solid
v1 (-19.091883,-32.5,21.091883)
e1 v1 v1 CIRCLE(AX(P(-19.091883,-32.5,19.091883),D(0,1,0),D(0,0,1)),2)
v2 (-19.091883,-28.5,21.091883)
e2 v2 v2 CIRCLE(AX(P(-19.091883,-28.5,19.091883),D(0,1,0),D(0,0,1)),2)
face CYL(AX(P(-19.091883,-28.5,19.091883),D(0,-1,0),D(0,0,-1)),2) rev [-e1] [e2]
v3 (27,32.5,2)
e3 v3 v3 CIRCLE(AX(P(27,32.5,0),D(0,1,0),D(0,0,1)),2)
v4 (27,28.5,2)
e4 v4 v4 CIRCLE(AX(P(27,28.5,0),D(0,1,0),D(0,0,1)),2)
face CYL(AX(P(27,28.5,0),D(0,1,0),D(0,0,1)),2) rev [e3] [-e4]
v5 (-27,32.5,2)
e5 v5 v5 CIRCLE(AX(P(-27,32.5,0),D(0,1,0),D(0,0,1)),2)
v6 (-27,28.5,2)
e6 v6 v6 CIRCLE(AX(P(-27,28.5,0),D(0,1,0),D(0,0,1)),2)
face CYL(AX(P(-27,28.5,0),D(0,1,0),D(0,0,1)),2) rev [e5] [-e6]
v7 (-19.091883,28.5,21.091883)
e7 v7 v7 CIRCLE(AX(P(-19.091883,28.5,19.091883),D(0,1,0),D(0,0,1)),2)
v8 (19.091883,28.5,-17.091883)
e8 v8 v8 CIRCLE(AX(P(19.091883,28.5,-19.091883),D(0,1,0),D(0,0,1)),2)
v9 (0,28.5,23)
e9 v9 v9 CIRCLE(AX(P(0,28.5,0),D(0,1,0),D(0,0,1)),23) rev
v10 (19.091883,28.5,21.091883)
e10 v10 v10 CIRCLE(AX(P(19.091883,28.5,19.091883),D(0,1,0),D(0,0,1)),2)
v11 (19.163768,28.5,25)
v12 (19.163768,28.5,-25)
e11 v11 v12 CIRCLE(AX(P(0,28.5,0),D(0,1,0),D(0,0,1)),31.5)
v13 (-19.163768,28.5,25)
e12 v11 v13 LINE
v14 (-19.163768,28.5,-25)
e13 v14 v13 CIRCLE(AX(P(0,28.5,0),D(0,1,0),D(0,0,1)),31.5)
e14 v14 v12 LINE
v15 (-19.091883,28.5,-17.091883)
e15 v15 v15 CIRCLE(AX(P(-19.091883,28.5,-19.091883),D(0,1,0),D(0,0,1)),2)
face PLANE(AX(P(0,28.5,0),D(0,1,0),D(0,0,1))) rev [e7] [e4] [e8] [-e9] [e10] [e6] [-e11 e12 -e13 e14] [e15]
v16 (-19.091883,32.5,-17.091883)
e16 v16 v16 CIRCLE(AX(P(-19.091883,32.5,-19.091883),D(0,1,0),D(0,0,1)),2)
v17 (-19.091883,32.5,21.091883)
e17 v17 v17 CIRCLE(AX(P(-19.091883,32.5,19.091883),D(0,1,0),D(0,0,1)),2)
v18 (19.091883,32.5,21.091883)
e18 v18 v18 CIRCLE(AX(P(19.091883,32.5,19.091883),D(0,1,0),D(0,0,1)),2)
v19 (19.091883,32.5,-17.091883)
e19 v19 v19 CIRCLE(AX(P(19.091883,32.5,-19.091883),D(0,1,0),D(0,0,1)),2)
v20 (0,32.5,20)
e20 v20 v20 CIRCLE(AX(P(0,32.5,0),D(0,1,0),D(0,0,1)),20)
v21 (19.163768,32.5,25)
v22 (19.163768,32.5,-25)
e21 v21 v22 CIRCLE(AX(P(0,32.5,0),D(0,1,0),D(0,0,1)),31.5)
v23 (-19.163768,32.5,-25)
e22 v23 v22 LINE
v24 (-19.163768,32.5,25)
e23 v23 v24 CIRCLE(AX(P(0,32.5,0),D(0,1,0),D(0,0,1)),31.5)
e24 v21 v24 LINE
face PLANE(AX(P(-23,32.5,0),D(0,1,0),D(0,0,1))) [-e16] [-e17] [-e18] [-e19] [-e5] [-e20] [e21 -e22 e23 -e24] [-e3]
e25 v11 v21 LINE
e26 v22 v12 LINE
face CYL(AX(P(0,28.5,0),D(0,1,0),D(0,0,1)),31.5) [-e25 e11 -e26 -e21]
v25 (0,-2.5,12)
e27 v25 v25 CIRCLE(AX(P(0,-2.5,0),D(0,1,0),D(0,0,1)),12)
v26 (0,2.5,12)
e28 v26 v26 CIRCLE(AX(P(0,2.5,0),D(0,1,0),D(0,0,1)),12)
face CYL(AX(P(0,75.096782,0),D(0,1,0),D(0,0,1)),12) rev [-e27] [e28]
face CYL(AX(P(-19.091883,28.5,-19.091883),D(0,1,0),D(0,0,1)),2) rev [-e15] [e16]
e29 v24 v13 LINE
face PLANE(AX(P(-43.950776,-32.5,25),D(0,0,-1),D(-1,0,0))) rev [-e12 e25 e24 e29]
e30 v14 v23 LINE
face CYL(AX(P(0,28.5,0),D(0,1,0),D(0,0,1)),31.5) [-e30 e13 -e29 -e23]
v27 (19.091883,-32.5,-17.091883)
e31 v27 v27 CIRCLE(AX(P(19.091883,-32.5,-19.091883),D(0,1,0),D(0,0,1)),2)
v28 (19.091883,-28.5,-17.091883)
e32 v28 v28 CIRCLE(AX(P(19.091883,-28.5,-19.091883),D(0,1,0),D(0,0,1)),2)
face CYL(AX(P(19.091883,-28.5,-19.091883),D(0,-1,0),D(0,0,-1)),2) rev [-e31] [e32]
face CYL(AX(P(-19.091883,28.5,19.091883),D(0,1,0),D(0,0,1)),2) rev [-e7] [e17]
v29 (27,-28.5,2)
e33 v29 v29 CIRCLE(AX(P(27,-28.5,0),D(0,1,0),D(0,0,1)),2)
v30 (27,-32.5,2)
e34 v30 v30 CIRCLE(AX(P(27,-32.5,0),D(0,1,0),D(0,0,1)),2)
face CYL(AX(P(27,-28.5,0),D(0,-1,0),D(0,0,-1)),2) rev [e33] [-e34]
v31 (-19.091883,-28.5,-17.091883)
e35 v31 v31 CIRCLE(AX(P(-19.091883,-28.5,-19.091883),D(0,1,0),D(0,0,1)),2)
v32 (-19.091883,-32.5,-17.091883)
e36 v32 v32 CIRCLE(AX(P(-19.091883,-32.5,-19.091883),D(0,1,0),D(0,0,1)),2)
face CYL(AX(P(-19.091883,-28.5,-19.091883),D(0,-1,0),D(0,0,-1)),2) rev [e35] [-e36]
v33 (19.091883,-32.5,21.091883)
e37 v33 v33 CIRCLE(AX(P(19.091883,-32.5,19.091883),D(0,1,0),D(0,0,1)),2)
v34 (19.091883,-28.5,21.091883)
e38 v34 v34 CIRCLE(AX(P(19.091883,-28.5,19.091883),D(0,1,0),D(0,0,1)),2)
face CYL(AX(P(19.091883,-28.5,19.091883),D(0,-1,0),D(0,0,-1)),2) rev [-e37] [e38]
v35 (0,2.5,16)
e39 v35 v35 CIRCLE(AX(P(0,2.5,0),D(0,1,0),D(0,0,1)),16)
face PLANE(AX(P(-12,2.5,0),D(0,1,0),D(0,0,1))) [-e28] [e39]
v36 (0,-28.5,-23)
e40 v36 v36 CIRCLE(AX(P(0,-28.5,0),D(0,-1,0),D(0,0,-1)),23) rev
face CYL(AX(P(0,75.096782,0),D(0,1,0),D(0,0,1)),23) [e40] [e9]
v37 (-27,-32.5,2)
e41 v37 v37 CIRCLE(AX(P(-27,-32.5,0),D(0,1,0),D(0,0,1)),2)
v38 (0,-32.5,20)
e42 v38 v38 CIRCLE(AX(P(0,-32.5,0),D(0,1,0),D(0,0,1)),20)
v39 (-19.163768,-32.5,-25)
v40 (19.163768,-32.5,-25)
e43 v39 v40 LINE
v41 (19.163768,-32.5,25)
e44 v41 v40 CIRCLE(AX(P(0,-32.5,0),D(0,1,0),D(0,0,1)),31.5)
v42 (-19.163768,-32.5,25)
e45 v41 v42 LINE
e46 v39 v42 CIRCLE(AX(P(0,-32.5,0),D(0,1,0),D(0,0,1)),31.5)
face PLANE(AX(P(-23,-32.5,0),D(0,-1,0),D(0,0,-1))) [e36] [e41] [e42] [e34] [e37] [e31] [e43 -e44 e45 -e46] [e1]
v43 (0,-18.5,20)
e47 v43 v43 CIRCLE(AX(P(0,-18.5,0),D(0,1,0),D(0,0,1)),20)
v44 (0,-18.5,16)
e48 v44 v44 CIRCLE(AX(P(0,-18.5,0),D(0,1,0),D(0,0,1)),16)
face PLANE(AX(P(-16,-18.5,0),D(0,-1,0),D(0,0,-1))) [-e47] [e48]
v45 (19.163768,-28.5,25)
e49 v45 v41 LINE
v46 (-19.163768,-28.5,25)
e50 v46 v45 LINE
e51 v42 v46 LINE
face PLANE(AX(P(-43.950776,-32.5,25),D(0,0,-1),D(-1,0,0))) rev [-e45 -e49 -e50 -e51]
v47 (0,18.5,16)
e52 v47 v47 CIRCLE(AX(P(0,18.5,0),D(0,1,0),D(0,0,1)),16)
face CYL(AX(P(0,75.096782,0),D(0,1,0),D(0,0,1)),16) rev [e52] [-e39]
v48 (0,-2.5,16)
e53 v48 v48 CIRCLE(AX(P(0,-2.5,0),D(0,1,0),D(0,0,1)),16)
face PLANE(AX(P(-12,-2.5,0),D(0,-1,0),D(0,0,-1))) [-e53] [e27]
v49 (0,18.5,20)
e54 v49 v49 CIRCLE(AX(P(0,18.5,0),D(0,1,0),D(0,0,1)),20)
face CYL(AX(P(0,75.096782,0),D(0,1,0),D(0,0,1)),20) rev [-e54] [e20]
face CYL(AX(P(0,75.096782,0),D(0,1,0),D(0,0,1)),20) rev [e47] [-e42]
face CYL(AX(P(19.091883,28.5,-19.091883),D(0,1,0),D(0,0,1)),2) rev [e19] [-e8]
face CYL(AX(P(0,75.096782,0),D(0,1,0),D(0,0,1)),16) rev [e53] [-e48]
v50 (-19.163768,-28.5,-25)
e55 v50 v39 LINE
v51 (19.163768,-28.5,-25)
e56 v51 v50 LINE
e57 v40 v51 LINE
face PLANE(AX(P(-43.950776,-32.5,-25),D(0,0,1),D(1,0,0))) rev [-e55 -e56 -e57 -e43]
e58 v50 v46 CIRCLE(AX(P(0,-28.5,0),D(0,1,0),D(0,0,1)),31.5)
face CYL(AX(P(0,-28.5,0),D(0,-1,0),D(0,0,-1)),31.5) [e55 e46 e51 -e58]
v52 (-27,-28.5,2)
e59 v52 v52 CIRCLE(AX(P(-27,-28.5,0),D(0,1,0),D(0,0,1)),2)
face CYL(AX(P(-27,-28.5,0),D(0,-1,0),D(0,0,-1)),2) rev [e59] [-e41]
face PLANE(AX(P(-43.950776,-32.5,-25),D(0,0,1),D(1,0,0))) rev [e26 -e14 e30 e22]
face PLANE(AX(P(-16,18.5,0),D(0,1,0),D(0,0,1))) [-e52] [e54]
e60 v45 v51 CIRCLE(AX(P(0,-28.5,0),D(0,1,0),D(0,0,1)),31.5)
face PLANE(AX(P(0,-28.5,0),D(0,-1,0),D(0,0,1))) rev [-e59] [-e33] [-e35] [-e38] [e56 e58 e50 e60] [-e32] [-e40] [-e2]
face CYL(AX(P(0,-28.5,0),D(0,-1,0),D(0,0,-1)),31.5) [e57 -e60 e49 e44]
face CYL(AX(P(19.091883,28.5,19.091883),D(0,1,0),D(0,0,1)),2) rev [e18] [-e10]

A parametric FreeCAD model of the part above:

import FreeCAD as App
import Part
import Sketcher

V = App.Vector
Q = App.Units.Quantity


def add_polygon(sketch, points):
    """Adds a closed chain of lines whose ends are joined by coincident constraints."""
    first, n = sketch.GeometryCount, len(points)
    for a, b in zip(points, points[1:] + points[:1]):
        sketch.addGeometry(Part.LineSegment(App.Vector(*a, 0), App.Vector(*b, 0)), False)
    for i in range(n):
        sketch.addConstraint(Sketcher.Constraint("Coincident", first + i, 2, first + (i + 1) % n, 1))

doc = App.newDocument("Part")
body = doc.addObject("PartDesign::Body", "Body")

sketch1 = body.newObject("Sketcher::SketchObject", "Sketch")
sketch1.AttachmentSupport = (doc.getObject("XY_Plane"), [""])
sketch1.MapMode = "FlatFace"
add_polygon(sketch1, [(-12, -2.5), (-12, 2.5), (-16, 2.5), (-16, 18.5), (-20, 18.5), (-20, 32.5), (-23, 32.5), (-23, -32.5), (-20, -32.5), (-20, -18.5), (-16, -18.5), (-16, -2.5)])
sketch1.addConstraint([
    Sketcher.Constraint("Vertical", 0),
    Sketcher.Constraint("Horizontal", 1),
    Sketcher.Constraint("Vertical", 2),
    Sketcher.Constraint("Horizontal", 3),
    Sketcher.Constraint("Vertical", 4),
    Sketcher.Constraint("Horizontal", 5),
    Sketcher.Constraint("Vertical", 6),
    Sketcher.Constraint("Horizontal", 7),
    Sketcher.Constraint("Vertical", 8),
    Sketcher.Constraint("Horizontal", 9),
    Sketcher.Constraint("Vertical", 10),
    Sketcher.Constraint("Horizontal", 11),
    Sketcher.Constraint("Symmetric", 4, 2, 7, 2, -1),
    Sketcher.Constraint("Symmetric", 2, 2, 9, 2, -1),
    Sketcher.Constraint("Equal", 1, 3),
    Sketcher.Constraint("Equal", 2, 10),
    Sketcher.Constraint("DistanceX", 1, 2, 1, 1, Q("4 mm")),
    Sketcher.Constraint("DistanceX", 5, 2, 5, 1, Q("3 mm")),
    Sketcher.Constraint("DistanceY", 0, 1, 0, 2, Q("5 mm")),
    Sketcher.Constraint("DistanceY", 2, 1, 2, 2, Q("16 mm")),
    Sketcher.Constraint("DistanceY", 4, 1, 4, 2, Q("14 mm")),
    Sketcher.Constraint("DistanceX", 0, 2, -1, 1, Q("12 mm")),
])
revolution = body.newObject("PartDesign::Revolution", "Revolution")
revolution.Profile = sketch1
revolution.ReferenceAxis = (sketch1, ["V_Axis"])
revolution.Angle = 360

sketch2 = body.newObject("Sketcher::SketchObject", "Sketch001")
sketch2.AttachmentSupport = (doc.getObject("XZ_Plane"), [""])
sketch2.MapMode = "FlatFace"
sketch2.AttachmentOffset = App.Placement(V(0, 0, -32.5), App.Rotation())
sketch2.addGeometry([
    Part.Circle(V(0, 0, 0), V(0, 0, 1), 31.5),
    Part.Circle(V(-19.1, 19.1, 0), V(0, 0, 1), 2),
    Part.Circle(V(0, 27, 0), V(0, 0, 1), 2),
    Part.Circle(V(19.1, 19.1, 0), V(0, 0, 1), 2),
    Part.Circle(V(-27, 0, 0), V(0, 0, 1), 2),
    Part.Circle(V(-19.1, -19.1, 0), V(0, 0, 1), 2),
    Part.Circle(V(0, 0, 0), V(0, 0, 1), 21.5),
    Part.Circle(V(27, 0, 0), V(0, 0, 1), 2),
    Part.Circle(V(0, -27, 0), V(0, 0, 1), 2),
    Part.Circle(V(19.1, -19.1, 0), V(0, 0, 1), 2),
], False)
sketch2.addConstraint([
    Sketcher.Constraint("Coincident", 0, 3, -1, 1),
    Sketcher.Constraint("Coincident", 6, 3, -1, 1),
    Sketcher.Constraint("Equal", 1, 2),
    Sketcher.Constraint("Equal", 2, 3),
    Sketcher.Constraint("Equal", 3, 4),
    Sketcher.Constraint("Equal", 4, 5),
    Sketcher.Constraint("Equal", 5, 7),
    Sketcher.Constraint("Equal", 7, 8),
    Sketcher.Constraint("Equal", 8, 9),
    Sketcher.Constraint("Symmetric", 3, 3, 5, 3, -1, 1),
    Sketcher.Constraint("Symmetric", 4, 3, 7, 3, -1, 1),
    Sketcher.Constraint("Symmetric", 2, 3, 8, 3, -1, 1),
    Sketcher.Constraint("Symmetric", 1, 3, 9, 3, -1, 1),
    Sketcher.Constraint("Symmetric", 1, 3, 3, 3, -2),
    Sketcher.Constraint("PointOnObject", 2, 3, -2),
    Sketcher.Constraint("PointOnObject", 4, 3, -1),
    Sketcher.Constraint("Diameter", 0, Q("63 mm")),
    Sketcher.Constraint("Diameter", 1, Q("4 mm")),
    Sketcher.Constraint("Diameter", 6, Q("43 mm")),
    Sketcher.Constraint("DistanceY", -1, 1, 2, 3, Q("27 mm")),
    Sketcher.Constraint("DistanceX", 4, 3, -1, 1, Q("27 mm")),
    Sketcher.Constraint("DistanceX", 1, 3, -1, 1, Q("19.091883 mm")),
    Sketcher.Constraint("DistanceY", -1, 1, 1, 3, Q("19.091883 mm")),
])
pad1 = body.newObject("PartDesign::Pad", "Pad")
pad1.Profile = sketch2
pad1.Length = 4
doc.recompute()

mirrored = body.newObject("PartDesign::Mirrored", "Mirrored")
mirrored.Originals = [pad1]
mirrored.MirrorPlane = (doc.getObject("XZ_Plane"), [""])
body.Tip = mirrored

sketch3 = body.newObject("Sketcher::SketchObject", "Sketch002")
sketch3.AttachmentSupport = (doc.getObject("XZ_Plane"), [""])
sketch3.MapMode = "FlatFace"
sketch3.AttachmentOffset = App.Placement(V(0, 0, -32.5), App.Rotation())
add_polygon(sketch3, [(-44, -39), (-44, -25), (53, -25), (53, -39)])
add_polygon(sketch3, [(-44, 25), (-44, 45), (53, 45), (53, 25)])
sketch3.addConstraint([
    Sketcher.Constraint("Vertical", 0),
    Sketcher.Constraint("Horizontal", 1),
    Sketcher.Constraint("Vertical", 2),
    Sketcher.Constraint("Horizontal", 3),
    Sketcher.Constraint("Vertical", 4),
    Sketcher.Constraint("Horizontal", 5),
    Sketcher.Constraint("Vertical", 6),
    Sketcher.Constraint("Horizontal", 7),
    Sketcher.Constraint("Symmetric", 1, 2, 6, 2, -1),
    Sketcher.Constraint("Vertical", 3, 2, 4, 2),
    Sketcher.Constraint("DistanceY", 0, 2, -1, 1, Q("25 mm")),
    Sketcher.Constraint("DistanceX", 1, 1, 1, 2, Q("97.162679 mm")),
    Sketcher.Constraint("DistanceY", 0, 1, 0, 2, Q("14.406328 mm")),
    Sketcher.Constraint("DistanceY", 4, 1, 4, 2, Q("19.608613 mm")),
    Sketcher.Constraint("DistanceX", 0, 2, -1, 1, Q("43.950776 mm")),
])
pocket1 = body.newObject("PartDesign::Pocket", "Pocket")
pocket1.Profile = sketch3
pocket1.Type = "ThroughAll"
pocket1.Reversed = True

doc.recompute()
